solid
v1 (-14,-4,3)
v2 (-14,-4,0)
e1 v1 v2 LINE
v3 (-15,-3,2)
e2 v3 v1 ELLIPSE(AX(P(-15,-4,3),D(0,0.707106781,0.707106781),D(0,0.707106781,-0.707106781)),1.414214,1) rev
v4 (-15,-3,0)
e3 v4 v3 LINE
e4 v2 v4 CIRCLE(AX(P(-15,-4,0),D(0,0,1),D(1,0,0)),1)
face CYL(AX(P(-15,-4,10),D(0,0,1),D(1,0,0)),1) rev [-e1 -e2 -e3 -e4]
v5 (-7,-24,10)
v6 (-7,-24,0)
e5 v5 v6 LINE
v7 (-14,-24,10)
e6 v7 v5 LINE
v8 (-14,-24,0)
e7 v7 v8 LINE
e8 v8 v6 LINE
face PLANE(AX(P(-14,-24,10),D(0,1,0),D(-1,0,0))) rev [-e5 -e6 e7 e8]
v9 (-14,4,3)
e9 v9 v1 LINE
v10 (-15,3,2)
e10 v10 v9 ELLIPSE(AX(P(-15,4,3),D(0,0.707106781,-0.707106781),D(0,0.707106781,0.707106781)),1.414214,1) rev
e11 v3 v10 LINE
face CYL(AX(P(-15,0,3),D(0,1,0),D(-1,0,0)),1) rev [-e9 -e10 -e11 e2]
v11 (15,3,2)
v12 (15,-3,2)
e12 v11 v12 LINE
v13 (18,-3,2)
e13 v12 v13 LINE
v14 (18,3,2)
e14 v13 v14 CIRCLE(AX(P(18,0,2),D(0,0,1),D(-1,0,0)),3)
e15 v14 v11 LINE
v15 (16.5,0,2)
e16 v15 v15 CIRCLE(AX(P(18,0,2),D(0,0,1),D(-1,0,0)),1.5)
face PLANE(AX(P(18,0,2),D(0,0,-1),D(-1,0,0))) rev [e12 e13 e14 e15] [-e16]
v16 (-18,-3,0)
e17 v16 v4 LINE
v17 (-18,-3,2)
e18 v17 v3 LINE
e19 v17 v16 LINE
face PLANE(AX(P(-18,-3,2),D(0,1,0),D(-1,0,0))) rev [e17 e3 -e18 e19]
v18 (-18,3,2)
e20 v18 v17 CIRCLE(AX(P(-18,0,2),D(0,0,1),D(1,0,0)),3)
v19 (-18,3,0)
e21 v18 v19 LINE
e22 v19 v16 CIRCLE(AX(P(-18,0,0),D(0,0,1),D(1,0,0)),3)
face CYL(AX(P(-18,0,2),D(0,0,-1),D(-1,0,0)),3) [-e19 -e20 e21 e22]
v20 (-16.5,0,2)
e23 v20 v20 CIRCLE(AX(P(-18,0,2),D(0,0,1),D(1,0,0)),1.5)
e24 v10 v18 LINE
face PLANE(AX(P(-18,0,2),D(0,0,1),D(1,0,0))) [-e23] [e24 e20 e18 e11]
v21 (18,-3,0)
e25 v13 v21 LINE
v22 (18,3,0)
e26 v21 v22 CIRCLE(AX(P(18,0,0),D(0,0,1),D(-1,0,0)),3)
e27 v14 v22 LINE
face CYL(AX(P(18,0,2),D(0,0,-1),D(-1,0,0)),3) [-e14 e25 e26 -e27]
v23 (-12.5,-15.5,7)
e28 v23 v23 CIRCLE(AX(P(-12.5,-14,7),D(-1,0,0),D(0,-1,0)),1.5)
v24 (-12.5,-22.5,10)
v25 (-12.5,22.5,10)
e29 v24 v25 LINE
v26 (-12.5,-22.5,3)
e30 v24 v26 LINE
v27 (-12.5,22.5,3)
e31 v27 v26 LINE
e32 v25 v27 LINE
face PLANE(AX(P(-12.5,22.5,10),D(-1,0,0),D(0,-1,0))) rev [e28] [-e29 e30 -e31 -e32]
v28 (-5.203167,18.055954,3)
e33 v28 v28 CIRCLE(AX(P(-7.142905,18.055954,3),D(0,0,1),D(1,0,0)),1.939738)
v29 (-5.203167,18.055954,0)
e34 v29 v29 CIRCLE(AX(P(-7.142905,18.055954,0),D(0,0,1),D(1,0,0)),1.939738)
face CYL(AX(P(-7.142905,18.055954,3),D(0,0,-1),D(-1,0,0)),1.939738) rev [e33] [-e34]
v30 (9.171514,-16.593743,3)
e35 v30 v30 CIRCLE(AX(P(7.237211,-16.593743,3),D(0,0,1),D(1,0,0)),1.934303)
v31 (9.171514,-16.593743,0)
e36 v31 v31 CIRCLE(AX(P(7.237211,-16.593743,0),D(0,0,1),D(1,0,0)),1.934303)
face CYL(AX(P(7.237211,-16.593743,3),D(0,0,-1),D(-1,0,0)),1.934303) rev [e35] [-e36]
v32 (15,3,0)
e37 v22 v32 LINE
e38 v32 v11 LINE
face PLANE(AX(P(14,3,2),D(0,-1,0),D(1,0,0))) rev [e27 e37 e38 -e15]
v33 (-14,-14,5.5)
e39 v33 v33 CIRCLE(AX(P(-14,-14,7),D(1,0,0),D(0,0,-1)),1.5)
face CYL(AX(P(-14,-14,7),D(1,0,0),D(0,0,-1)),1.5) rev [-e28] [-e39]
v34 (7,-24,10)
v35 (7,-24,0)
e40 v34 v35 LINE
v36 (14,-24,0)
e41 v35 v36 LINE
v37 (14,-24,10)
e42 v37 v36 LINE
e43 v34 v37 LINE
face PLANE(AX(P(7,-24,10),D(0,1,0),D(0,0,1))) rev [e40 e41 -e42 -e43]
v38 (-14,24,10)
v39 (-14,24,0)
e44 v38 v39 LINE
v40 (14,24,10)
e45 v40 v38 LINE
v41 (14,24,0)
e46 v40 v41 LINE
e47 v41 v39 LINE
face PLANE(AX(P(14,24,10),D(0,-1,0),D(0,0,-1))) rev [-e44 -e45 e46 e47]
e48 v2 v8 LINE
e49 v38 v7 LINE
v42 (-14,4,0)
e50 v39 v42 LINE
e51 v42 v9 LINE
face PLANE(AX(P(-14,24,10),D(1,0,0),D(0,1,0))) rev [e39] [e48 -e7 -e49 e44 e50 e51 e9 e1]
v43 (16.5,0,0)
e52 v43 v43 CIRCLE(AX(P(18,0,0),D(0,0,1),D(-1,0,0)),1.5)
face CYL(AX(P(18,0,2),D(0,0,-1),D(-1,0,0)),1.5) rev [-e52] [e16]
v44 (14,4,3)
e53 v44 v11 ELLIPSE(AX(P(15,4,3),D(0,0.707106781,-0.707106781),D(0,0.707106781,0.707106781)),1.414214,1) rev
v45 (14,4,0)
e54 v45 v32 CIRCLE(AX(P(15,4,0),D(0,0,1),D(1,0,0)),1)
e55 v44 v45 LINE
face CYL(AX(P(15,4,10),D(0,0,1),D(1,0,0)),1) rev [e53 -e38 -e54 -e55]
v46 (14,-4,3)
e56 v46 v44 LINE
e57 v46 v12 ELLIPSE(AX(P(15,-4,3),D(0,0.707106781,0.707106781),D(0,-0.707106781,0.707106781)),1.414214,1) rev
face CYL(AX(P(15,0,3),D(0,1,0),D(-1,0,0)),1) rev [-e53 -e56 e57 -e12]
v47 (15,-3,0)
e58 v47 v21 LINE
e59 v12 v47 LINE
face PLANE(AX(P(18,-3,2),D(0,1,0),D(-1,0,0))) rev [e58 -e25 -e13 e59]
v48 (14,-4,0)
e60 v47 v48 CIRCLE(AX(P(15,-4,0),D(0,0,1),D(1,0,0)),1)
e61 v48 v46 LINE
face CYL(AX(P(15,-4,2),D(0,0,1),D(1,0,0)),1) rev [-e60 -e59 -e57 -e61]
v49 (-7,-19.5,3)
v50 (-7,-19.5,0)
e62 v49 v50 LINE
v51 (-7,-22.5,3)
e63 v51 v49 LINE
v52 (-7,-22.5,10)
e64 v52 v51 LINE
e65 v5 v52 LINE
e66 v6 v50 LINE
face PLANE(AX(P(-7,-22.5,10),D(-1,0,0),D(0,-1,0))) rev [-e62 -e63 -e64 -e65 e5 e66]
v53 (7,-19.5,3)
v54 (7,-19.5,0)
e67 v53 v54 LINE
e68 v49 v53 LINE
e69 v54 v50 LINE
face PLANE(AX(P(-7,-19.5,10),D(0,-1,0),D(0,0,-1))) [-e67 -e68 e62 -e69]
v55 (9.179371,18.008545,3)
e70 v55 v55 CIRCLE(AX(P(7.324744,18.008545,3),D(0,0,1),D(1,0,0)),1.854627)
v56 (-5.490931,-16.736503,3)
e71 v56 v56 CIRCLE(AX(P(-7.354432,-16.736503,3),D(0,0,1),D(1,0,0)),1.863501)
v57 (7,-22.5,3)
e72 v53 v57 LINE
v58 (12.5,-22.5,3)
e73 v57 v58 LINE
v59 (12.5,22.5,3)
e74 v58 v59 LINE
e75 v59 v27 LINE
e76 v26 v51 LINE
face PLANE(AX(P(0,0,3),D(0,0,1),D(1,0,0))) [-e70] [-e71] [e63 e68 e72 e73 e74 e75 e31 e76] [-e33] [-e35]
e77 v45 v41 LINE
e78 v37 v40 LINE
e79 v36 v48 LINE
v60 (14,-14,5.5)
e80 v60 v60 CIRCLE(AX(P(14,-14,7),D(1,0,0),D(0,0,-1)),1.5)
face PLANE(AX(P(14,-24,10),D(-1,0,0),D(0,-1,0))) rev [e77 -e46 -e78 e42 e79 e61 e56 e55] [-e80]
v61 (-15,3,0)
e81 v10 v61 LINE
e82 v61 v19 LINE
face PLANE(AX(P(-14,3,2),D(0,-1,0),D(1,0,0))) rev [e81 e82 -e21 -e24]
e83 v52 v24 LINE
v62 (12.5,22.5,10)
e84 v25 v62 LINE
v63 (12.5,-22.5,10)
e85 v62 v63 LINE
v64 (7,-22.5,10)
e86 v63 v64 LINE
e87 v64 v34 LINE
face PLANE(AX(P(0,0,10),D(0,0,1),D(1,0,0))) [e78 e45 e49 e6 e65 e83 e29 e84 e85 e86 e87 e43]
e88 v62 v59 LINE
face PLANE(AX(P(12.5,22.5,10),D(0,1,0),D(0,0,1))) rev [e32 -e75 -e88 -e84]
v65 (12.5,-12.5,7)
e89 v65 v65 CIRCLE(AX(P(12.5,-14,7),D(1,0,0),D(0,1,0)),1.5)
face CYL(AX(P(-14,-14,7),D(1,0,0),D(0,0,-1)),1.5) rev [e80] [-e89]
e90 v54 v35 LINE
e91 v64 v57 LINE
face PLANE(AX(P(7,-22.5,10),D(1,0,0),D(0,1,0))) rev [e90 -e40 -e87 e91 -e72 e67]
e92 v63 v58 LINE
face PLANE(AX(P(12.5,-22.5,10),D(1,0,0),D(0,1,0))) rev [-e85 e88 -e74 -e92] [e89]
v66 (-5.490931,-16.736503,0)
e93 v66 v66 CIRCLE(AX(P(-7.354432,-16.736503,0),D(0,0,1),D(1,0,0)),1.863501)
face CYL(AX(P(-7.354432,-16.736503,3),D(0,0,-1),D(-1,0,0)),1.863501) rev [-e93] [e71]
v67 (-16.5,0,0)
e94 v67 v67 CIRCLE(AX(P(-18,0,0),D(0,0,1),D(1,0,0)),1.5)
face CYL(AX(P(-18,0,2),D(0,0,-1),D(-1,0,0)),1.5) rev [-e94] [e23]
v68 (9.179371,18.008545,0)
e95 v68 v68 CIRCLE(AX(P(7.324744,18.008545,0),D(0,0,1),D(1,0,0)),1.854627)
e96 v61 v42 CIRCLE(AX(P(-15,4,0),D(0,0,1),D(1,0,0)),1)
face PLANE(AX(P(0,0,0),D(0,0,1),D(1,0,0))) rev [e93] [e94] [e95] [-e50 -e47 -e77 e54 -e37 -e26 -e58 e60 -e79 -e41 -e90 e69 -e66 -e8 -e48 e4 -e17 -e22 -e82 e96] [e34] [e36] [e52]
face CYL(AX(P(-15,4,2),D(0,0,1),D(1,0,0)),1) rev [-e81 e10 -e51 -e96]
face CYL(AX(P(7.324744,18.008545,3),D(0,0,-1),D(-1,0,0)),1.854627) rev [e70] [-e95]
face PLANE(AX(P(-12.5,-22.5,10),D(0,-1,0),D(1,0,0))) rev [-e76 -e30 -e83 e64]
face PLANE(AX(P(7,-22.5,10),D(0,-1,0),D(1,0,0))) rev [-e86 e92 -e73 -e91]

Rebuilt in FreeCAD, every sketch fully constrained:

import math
import FreeCAD as App
import Part
import Sketcher

V = App.Vector


def edges_at(feature, points):
    """Names of the edges that pass closest to the given points."""
    edges = feature.Shape.Edges
    near = lambda p: min(range(len(edges)), key=lambda i: edges[i].distToShape(Part.Vertex(*p))[0])
    return sorted({f"Edge{near(p) + 1}" for p in points})


def add_polygon(sketch, points):
    """Adds a closed chain of lines whose ends are joined by coincident constraints."""
    first, n = sketch.GeometryCount, len(points)
    for a, b in zip(points, points[1:] + points[:1]):
        sketch.addGeometry(Part.LineSegment(App.Vector(*a, 0), App.Vector(*b, 0)), False)
    for i in range(n):
        sketch.addConstraint(Sketcher.Constraint("Coincident", first + i, 2, first + (i + 1) % n, 1))

doc = App.newDocument("Part")
params = doc.addObject("Spreadsheet::Sheet", "Params")
for row, (alias, value) in enumerate([
    ("sketch1_width", "25 mm"),
    ("sketch1_height", "45 mm"),
    ("pad1_length", "3 mm"),
    ("sketch2_width", "7 mm"),
    ("sketch2_width2", "28 mm"),
    ("sketch2_width3", "25 mm"),
    ("sketch2_height", "48 mm"),
    ("sketch2_height2", "45 mm"),
    ("pad2_length", "10 mm"),
    ("sketch3_diameter", "3 mm"),
    ("sketch4_diameter", "3 mm"),
    ("sketch4_radius", "3 mm"),
    ("sketch4_width", "4 mm"),
    ("pad3_length", "2 mm"),
    ("fillet_radius", "1 mm"),
    ("sketch5_width", "14 mm"),
    ("sketch5_height", "3 mm"),
], start=1):
    params.set(f"A{row}", alias)
    params.set(f"B{row}", "=" + value)
    params.setAlias(f"B{row}", alias)

body = doc.addObject("PartDesign::Body", "Body")

sketch1 = body.newObject("Sketcher::SketchObject", "Sketch")
sketch1.AttachmentSupport = (doc.getObject("XY_Plane"), [""])
sketch1.MapMode = "FlatFace"
add_polygon(sketch1, [(-12.5, 22.5), (-12.5, -22.5), (12.5, -22.5), (12.5, 22.5)])
sketch1.addGeometry(Part.Circle(V(-7.4, -16.7, 0), V(0, 0, 1), 1.9), False)
sketch1.addGeometry(Part.Circle(V(7.2, -16.6, 0), V(0, 0, 1), 1.9), False)
sketch1.addGeometry(Part.Circle(V(-7.1, 18.1, 0), V(0, 0, 1), 1.9), False)
sketch1.addGeometry(Part.Circle(V(7.3, 18, 0), V(0, 0, 1), 1.9), False)
sketch1.addConstraint([
    Sketcher.Constraint("Vertical", 0),
    Sketcher.Constraint("Horizontal", 1),
    Sketcher.Constraint("Vertical", 2),
    Sketcher.Constraint("Horizontal", 3),
    Sketcher.Constraint("Symmetric", 0, 2, 2, 2, -1, 1),
    Sketcher.Constraint("DistanceX", 1, 1, 1, 2, 25.0),
    Sketcher.Constraint("DistanceY", 0, 2, 0, 1, 45.0),
    Sketcher.Constraint("Diameter", 4, 3.727002),
    Sketcher.Constraint("Diameter", 5, 3.868605),
    Sketcher.Constraint("Diameter", 6, 3.879476),
    Sketcher.Constraint("Diameter", 7, 3.709254),
    Sketcher.Constraint("DistanceX", 4, 3, -1, 1, 7.354432),
    Sketcher.Constraint("DistanceX", -1, 1, 5, 3, 7.237211),
    Sketcher.Constraint("DistanceY", 4, 3, 5, 3, 0.142759),
    Sketcher.Constraint("DistanceX", 6, 3, 7, 3, 14.467649),
    Sketcher.Constraint("DistanceY", 7, 3, 6, 3, 0.047408),
    Sketcher.Constraint("DistanceY", 5, 3, 7, 3, 34.602289),
    Sketcher.Constraint("DistanceY", 4, 3, -1, 1, 16.736503),
    Sketcher.Constraint("DistanceX", 6, 3, -1, 1, 7.142905),
])
sketch1.setExpression("Constraints[9]", "Params.sketch1_width")
sketch1.setExpression("Constraints[10]", "Params.sketch1_height")
pad1 = body.newObject("PartDesign::Pad", "Pad")
pad1.Profile = sketch1
pad1.setExpression("Length", "Params.pad1_length")

sketch2 = body.newObject("Sketcher::SketchObject", "Sketch001")
sketch2.AttachmentSupport = (doc.getObject("XY_Plane"), [""])
sketch2.MapMode = "FlatFace"
add_polygon(sketch2, [(7, -22.5), (7, -24), (14, -24), (14, 24), (-14, 24), (-14, -24), (-7, -24), (-7, -22.5), (-12.5, -22.5), (-12.5, 22.5), (12.5, 22.5), (12.5, -22.5)])
sketch2.addConstraint([
    Sketcher.Constraint("Vertical", 0),
    Sketcher.Constraint("Horizontal", 1),
    Sketcher.Constraint("Vertical", 2),
    Sketcher.Constraint("Horizontal", 3),
    Sketcher.Constraint("Vertical", 4),
    Sketcher.Constraint("Horizontal", 5),
    Sketcher.Constraint("Vertical", 6),
    Sketcher.Constraint("Horizontal", 7),
    Sketcher.Constraint("Vertical", 8),
    Sketcher.Constraint("Horizontal", 9),
    Sketcher.Constraint("Vertical", 10),
    Sketcher.Constraint("Horizontal", 11),
    Sketcher.Constraint("Symmetric", 1, 2, 3, 2, -1, 1),
    Sketcher.Constraint("Symmetric", 7, 2, 9, 2, -1, 1),
    Sketcher.Constraint("Symmetric", 0, 2, 5, 2, -2),
    Sketcher.Constraint("Horizontal", 7, 2, 10, 2),
    Sketcher.Constraint("DistanceX", 1, 1, 1, 2, 7.0),
    Sketcher.Constraint("DistanceX", 3, 2, 3, 1, 28.0),
    Sketcher.Constraint("DistanceX", 9, 1, 9, 2, 25.0),
    Sketcher.Constraint("DistanceY", 2, 1, 2, 2, 48.0),
    Sketcher.Constraint("DistanceY", 8, 1, 8, 2, 45.0),
])
sketch2.setExpression("Constraints[28]", "Params.sketch2_width")
sketch2.setExpression("Constraints[29]", "Params.sketch2_width2")
sketch2.setExpression("Constraints[30]", "Params.sketch2_width3")
sketch2.setExpression("Constraints[31]", "Params.sketch2_height")
sketch2.setExpression("Constraints[32]", "Params.sketch2_height2")
pad2 = body.newObject("PartDesign::Pad", "Pad001")
pad2.Profile = sketch2
pad2.setExpression("Length", "Params.pad2_length")

sketch3 = body.newObject("Sketcher::SketchObject", "Sketch002")
sketch3.AttachmentSupport = (doc.getObject("YZ_Plane"), [""])
sketch3.MapMode = "FlatFace"
sketch3.addGeometry(Part.Circle(V(-14, 7, 0), V(0, 0, 1), 1.5), False)
sketch3.addConstraint([
    Sketcher.Constraint("Diameter", 0, 3.0),
    Sketcher.Constraint("DistanceX", 0, 3, -1, 1, 14.0),
    Sketcher.Constraint("DistanceY", -1, 1, 0, 3, 7.0),
])
sketch3.setExpression("Constraints[0]", "Params.sketch3_diameter")
pocket1 = body.newObject("PartDesign::Pocket", "Pocket")
pocket1.Profile = sketch3
pocket1.Type = "ThroughAll"
pocket1.Midplane = True

sketch4 = body.newObject("Sketcher::SketchObject", "Sketch003")
sketch4.AttachmentSupport = (doc.getObject("XY_Plane"), [""])
sketch4.MapMode = "FlatFace"
sketch4.addGeometry([
    Part.LineSegment(V(-14, 3, 0), V(-18, 3, 0)),
    Part.ArcOfCircle(Part.Circle(V(-18, 0, 0), V(0, 0, 1), 3), math.radians(90), math.radians(270)),
    Part.LineSegment(V(-18, -3, 0), V(-14, -3, 0)),
    Part.LineSegment(V(-14, -3, 0), V(-14, 3, 0)),
    Part.Circle(V(-18, 0, 0), V(0, 0, 1), 1.5),
    Part.LineSegment(V(14, -3, 0), V(18, -3, 0)),
    Part.ArcOfCircle(Part.Circle(V(18, 0, 0), V(0, 0, 1), 3), math.radians(-90), math.radians(90)),
    Part.LineSegment(V(18, 3, 0), V(14, 3, 0)),
    Part.LineSegment(V(14, 3, 0), V(14, -3, 0)),
    Part.Circle(V(18, 0, 0), V(0, 0, 1), 1.5),
], False)
sketch4.addConstraint([
    Sketcher.Constraint("Tangent", 0, 2, 1, 1),
    Sketcher.Constraint("Tangent", 1, 2, 2, 1),
    Sketcher.Constraint("Coincident", 2, 2, 3, 1),
    Sketcher.Constraint("Coincident", 3, 2, 0, 1),
    Sketcher.Constraint("Tangent", 5, 2, 6, 1),
    Sketcher.Constraint("Tangent", 6, 2, 7, 1),
    Sketcher.Constraint("Coincident", 7, 2, 8, 1),
    Sketcher.Constraint("Coincident", 8, 2, 5, 1),
    Sketcher.Constraint("Horizontal", 0),
    Sketcher.Constraint("Horizontal", 2),
    Sketcher.Constraint("Vertical", 3),
    Sketcher.Constraint("Horizontal", 5),
    Sketcher.Constraint("Horizontal", 7),
    Sketcher.Constraint("Vertical", 8),
    Sketcher.Constraint("Coincident", 4, 3, 1, 3),
    Sketcher.Constraint("Coincident", 9, 3, 6, 3),
    Sketcher.Constraint("Equal", 1, 6),
    Sketcher.Constraint("Equal", 4, 9),
    Sketcher.Constraint("Symmetric", 1, 3, 6, 3, -1, 1),
    Sketcher.Constraint("Symmetric", 3, 2, 7, 2, -2),
    Sketcher.Constraint("Diameter", 4, 3.0),
    Sketcher.Constraint("Radius", 1, 3.0),
    Sketcher.Constraint("DistanceX", 0, 2, 0, 1, 4.0),
    Sketcher.Constraint("DistanceX", 1, 3, -1, 1, 18.0),
])
sketch4.setExpression("Constraints[20]", "Params.sketch4_diameter")
sketch4.setExpression("Constraints[21]", "Params.sketch4_radius")
sketch4.setExpression("Constraints[22]", "Params.sketch4_width")
pad3 = body.newObject("PartDesign::Pad", "Pad002")
pad3.Profile = sketch4
pad3.setExpression("Length", "Params.pad3_length")
doc.recompute()

fillet = body.newObject("PartDesign::Fillet", "Fillet")
fillet.Base = (pad3, edges_at(pad3, [
    (-14, 0, 2),
    (-14, -3, 1),
    (-14, 3, 1),
    (14, 0, 2),
    (14, 3, 1),
    (14, -3, 1),
]))
fillet.setExpression("Radius", "Params.fillet_radius")

sketch5 = body.newObject("Sketcher::SketchObject", "Sketch004")
sketch5.AttachmentSupport = (doc.getObject("XY_Plane"), [""])
sketch5.MapMode = "FlatFace"
add_polygon(sketch5, [(-7, -19.5), (-7, -22.5), (7, -22.5), (7, -19.5)])
sketch5.addConstraint([
    Sketcher.Constraint("Vertical", 0),
    Sketcher.Constraint("Horizontal", 1),
    Sketcher.Constraint("Vertical", 2),
    Sketcher.Constraint("Horizontal", 3),
    Sketcher.Constraint("DistanceX", 1, 1, 1, 2, 14.0),
    Sketcher.Constraint("DistanceY", 0, 2, 0, 1, 3.0),
    Sketcher.Constraint("DistanceX", 0, 2, -1, 1, 7.0),
    Sketcher.Constraint("DistanceY", 0, 2, -1, 1, 22.5),
])
sketch5.setExpression("Constraints[8]", "Params.sketch5_width")
sketch5.setExpression("Constraints[9]", "Params.sketch5_height")
pocket2 = body.newObject("PartDesign::Pocket", "Pocket001")
pocket2.Profile = sketch5
pocket2.Type = "ThroughAll"
pocket2.Reversed = True

doc.recompute()
